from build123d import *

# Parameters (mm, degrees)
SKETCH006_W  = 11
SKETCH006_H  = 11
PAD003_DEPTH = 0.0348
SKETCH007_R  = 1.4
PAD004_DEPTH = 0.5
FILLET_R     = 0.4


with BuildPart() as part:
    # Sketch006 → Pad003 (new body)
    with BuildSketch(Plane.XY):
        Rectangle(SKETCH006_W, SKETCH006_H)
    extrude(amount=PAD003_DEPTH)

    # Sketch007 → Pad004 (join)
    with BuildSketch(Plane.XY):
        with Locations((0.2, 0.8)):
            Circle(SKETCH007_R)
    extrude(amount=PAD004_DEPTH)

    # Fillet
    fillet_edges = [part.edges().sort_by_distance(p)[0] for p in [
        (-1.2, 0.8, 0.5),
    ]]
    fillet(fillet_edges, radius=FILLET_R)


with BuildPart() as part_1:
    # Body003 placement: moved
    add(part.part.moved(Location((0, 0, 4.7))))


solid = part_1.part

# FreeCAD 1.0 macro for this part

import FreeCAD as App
import Part
import Sketcher


def edges_at(feature, points):
    """Names of the edges that pass closest to the given points."""
    edges = feature.Shape.Edges
    near = lambda p: min(range(len(edges)), key=lambda i: edges[i].distToShape(Part.Vertex(*p))[0])
    return sorted({f"Edge{near(p) + 1}" for p in points})


def add_polygon(sketch, points):
    """Adds a closed chain of lines whose ends are joined by coincident constraints."""
    first, n = sketch.GeometryCount, len(points)
    for a, b in zip(points, points[1:] + points[:1]):
        sketch.addGeometry(Part.LineSegment(App.Vector(*a, 0), App.Vector(*b, 0)), False)
    for i in range(n):
        sketch.addConstraint(Sketcher.Constraint("Coincident", first + i, 2, first + (i + 1) % n, 1))

doc = App.newDocument("Part")
body = doc.addObject("PartDesign::Body", "Body")

sketch1 = body.newObject("Sketcher::SketchObject", "Sketch")
sketch1.AttachmentSupport = (doc.getObject("XY_Plane"), [""])
sketch1.MapMode = "FlatFace"
add_polygon(sketch1, [(-6, 6), (-6, -6), (6, -6), (6, 6)])
sketch1.addConstraint([
    Sketcher.Constraint("Vertical", 0),
    Sketcher.Constraint("Horizontal", 1),
    Sketcher.Constraint("Vertical", 2),
    Sketcher.Constraint("Horizontal", 3),
    Sketcher.Constraint("Symmetric", 0, 2, 2, 2, -1, 1),
    Sketcher.Constraint("Equal", 3, 0),
    Sketcher.Constraint("DistanceX", 1, 1, 1, 2, 11.0),
])
pad1 = body.newObject("PartDesign::Pad", "Pad")
pad1.Profile = sketch1
pad1.Length = 0.0348

sketch2 = body.newObject("Sketcher::SketchObject", "Sketch001")
sketch2.AttachmentSupport = (doc.getObject("XY_Plane"), [""])
sketch2.MapMode = "FlatFace"
sketch2.addGeometry(Part.Circle(App.Vector(0.2, 0.8, 0), App.Vector(0, 0, 1), 1.4), False)
sketch2.addConstraint([
    Sketcher.Constraint("Diameter", 0, 2.8),
    Sketcher.Constraint("DistanceX", -1, 1, 0, 3, 0.2),
    Sketcher.Constraint("DistanceY", -1, 1, 0, 3, 0.8),
])
pad2 = body.newObject("PartDesign::Pad", "Pad001")
pad2.Profile = sketch2
pad2.Length = 0.5
doc.recompute()

fillet = body.newObject("PartDesign::Fillet", "Fillet")
fillet.Base = (pad2, edges_at(pad2, [(-1.2, 0.8, 0.5)]))
fillet.Radius = 0.4
body2 = doc.addObject("PartDesign::Body", "Body001")
doc.recompute()

body.Placement = App.Placement(App.Vector(0, 0, 4.7), App.Rotation(App.Vector(0, 0, 1), 0))
boolean = body2.newObject("PartDesign::Boolean", "Boolean")
boolean.Type = "Fuse"
boolean.addObjects([body])

doc.recompute()
